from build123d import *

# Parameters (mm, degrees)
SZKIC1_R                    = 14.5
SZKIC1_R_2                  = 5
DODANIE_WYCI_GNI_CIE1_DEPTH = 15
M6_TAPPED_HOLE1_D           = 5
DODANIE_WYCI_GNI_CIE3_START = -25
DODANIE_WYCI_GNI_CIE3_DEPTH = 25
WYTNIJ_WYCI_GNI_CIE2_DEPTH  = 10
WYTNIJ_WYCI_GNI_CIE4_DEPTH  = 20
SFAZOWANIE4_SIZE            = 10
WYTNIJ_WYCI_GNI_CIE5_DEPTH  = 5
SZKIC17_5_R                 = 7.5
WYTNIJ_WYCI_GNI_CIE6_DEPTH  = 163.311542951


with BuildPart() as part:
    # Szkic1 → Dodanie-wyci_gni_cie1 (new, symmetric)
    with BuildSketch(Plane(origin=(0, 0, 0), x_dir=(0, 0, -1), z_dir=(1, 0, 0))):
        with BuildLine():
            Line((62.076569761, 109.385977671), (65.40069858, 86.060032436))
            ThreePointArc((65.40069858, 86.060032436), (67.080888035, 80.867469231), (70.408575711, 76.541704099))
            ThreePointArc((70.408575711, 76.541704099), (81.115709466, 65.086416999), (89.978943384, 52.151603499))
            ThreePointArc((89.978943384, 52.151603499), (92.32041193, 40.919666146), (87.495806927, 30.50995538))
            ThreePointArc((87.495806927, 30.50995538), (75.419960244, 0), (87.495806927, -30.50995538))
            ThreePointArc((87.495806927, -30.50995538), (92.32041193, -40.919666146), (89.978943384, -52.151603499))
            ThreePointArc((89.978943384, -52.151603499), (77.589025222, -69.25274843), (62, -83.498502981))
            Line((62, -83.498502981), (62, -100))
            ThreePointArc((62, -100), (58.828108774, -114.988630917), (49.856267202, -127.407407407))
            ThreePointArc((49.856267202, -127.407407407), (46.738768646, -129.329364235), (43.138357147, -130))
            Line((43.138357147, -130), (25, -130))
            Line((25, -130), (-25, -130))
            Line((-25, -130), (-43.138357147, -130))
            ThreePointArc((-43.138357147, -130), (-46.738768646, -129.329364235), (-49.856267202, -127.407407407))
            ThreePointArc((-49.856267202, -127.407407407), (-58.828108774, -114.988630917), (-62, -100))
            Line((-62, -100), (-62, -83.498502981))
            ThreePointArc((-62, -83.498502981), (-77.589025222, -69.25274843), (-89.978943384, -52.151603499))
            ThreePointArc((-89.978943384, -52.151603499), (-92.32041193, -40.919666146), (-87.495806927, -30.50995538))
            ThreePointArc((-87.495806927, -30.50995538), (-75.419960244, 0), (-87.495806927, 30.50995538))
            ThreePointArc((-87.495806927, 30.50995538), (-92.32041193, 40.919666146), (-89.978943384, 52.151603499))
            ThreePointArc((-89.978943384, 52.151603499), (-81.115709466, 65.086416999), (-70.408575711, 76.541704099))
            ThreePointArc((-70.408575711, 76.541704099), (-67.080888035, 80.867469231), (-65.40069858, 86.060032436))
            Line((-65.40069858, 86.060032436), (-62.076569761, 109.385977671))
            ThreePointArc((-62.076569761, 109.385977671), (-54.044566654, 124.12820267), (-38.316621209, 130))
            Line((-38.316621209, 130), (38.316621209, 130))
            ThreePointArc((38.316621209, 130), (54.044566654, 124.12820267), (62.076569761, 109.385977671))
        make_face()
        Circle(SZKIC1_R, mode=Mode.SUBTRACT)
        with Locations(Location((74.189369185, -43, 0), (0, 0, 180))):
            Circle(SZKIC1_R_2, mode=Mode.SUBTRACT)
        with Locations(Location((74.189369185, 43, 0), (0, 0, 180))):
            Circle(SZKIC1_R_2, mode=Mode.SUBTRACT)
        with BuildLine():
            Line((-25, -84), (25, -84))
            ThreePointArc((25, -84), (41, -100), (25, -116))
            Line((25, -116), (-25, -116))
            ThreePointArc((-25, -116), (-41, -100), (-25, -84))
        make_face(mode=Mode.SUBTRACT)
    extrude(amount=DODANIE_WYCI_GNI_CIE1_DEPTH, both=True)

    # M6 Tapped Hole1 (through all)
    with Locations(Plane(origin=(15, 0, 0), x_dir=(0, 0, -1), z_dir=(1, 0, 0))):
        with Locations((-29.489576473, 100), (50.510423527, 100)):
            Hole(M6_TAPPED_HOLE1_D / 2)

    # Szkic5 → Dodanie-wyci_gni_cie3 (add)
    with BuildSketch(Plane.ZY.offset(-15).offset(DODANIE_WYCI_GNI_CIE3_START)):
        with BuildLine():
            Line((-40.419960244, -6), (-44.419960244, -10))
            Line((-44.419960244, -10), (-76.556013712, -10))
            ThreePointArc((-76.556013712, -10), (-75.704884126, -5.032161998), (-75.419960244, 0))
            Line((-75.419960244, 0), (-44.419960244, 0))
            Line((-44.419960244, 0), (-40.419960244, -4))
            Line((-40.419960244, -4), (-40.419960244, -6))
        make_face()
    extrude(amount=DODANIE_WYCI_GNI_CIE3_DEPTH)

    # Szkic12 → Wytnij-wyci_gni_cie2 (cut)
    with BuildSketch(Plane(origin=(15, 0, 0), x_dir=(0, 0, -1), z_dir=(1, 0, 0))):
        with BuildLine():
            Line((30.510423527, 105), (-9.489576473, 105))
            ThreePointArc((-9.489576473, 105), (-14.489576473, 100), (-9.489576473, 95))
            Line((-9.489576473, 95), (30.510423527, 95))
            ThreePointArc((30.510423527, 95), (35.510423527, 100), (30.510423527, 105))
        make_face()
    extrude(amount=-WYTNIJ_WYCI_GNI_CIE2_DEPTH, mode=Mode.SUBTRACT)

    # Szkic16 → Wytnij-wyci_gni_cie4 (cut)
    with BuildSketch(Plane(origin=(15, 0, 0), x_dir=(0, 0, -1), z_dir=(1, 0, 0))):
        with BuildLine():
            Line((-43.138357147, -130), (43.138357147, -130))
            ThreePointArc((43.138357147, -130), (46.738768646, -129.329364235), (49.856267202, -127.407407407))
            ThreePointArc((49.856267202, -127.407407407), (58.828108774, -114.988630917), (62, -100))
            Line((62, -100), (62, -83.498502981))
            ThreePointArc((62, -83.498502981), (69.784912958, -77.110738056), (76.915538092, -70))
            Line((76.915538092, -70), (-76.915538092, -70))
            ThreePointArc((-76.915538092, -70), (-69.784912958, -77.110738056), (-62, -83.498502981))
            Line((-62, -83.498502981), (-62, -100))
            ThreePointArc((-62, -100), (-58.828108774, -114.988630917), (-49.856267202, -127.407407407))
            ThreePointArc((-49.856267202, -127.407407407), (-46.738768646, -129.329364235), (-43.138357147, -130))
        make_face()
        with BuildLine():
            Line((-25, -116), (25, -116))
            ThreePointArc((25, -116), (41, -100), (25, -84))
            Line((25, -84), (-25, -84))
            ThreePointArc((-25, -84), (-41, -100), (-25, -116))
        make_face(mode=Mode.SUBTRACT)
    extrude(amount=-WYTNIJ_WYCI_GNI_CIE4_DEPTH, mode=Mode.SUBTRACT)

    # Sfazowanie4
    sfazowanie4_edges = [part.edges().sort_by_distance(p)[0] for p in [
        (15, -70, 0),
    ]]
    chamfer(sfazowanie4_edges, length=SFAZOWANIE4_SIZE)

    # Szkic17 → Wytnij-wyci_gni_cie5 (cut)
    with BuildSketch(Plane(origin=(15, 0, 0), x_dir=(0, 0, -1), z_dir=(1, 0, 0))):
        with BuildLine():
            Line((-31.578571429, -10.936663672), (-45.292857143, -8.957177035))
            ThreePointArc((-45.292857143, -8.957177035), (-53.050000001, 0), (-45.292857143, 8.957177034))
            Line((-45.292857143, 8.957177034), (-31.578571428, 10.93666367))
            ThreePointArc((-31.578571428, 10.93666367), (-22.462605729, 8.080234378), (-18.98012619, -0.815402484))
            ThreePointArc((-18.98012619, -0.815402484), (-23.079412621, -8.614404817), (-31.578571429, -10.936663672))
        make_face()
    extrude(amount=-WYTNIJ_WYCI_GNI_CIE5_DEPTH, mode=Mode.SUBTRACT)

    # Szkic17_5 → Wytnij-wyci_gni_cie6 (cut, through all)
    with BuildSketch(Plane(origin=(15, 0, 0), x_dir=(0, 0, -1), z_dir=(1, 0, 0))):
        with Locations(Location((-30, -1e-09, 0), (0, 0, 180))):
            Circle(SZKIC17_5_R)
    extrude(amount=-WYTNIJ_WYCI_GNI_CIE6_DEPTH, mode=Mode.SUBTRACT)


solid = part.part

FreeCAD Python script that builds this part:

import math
import FreeCAD as App
import Part
import Sketcher
Q = App.Units.Quantity


def edges_at(feature, points):
    """Names of the edges that pass closest to the given points."""
    edges = feature.Shape.Edges
    near = lambda p: min(range(len(edges)), key=lambda i: edges[i].distToShape(Part.Vertex(*p))[0])
    return sorted({f"Edge{near(p) + 1}" for p in points})

doc = App.newDocument("Part")
body = doc.addObject("PartDesign::Body", "Body")

sketch1 = body.newObject("Sketcher::SketchObject", "Sketch")
sketch1.AttachmentSupport = (doc.getObject("YZ_Plane"), [""])
sketch1.MapMode = "FlatFace"
sketch1.addGeometry([
    Part.LineSegment(App.Vector(86, -65, 0), App.Vector(109, -62, 0)),
    Part.ArcOfCircle(Part.Circle(App.Vector(106, -38, 0), App.Vector(0, 0, 1), 24), math.radians(-82), math.radians(0)),
    Part.LineSegment(App.Vector(130, -38, 0), App.Vector(130, 38, 0)),
    Part.ArcOfCircle(Part.Circle(App.Vector(106, 38, 0), App.Vector(0, 0, 1), 24), math.radians(0), math.radians(82)),
    Part.LineSegment(App.Vector(109, 62, 0), App.Vector(86, 65, 0)),
    Part.ArcOfCircle(Part.Circle(App.Vector(88, 81, 0), App.Vector(0, 0, 1), 16), math.radians(-137), math.radians(-98)),
    Part.ArcOfCircle(Part.Circle(App.Vector(0, 0, 0), App.Vector(0, 0, 1), 104), math.radians(42.61), math.radians(59.9)),
    Part.ArcOfCircle(Part.Circle(App.Vector(43, 74, 0), App.Vector(0, 0, 1), 18), math.radians(60), math.radians(133)),
    Part.ArcOfCircle(Part.Circle(App.Vector(0, 120, 0), App.Vector(0, 0, 1), 45), math.radians(-133), math.radians(-47)),
    Part.ArcOfCircle(Part.Circle(App.Vector(-43, 74, 0), App.Vector(0, 0, 1), 18), math.radians(47), math.radians(120)),
    Part.ArcOfCircle(Part.Circle(App.Vector(0, 0, 0), App.Vector(0, 0, 1), 104), math.radians(120), math.radians(143)),
    Part.LineSegment(App.Vector(-83, 62, 0), App.Vector(-100, 62, 0)),
    Part.ArcOfCircle(Part.Circle(App.Vector(-100, 25, 0), App.Vector(0, 0, 1), 37), math.radians(90), math.radians(138)),
    Part.ArcOfCircle(Part.Circle(App.Vector(-120, 43, 0), App.Vector(0, 0, 1), 10), math.radians(138), math.radians(180)),
    Part.LineSegment(App.Vector(-130, 43, 0), App.Vector(-130, -43, 0)),
    Part.ArcOfCircle(Part.Circle(App.Vector(-120, -43, 0), App.Vector(0, 0, 1), 10), math.radians(-180), math.radians(-138)),
    Part.ArcOfCircle(Part.Circle(App.Vector(-100, -25, 0), App.Vector(0, 0, 1), 37), math.radians(-138), math.radians(-90)),
    Part.LineSegment(App.Vector(-100, -62, 0), App.Vector(-83, -62, 0)),
    Part.ArcOfCircle(Part.Circle(App.Vector(0, 0, 0), App.Vector(0, 0, 1), 104), math.radians(-143), math.radians(-120)),
    Part.ArcOfCircle(Part.Circle(App.Vector(-43, -74, 0), App.Vector(0, 0, 1), 18), math.radians(-120), math.radians(-47)),
    Part.ArcOfCircle(Part.Circle(App.Vector(0, -120, 0), App.Vector(0, 0, 1), 45), math.radians(47), math.radians(133)),
    Part.ArcOfCircle(Part.Circle(App.Vector(43, -74, 0), App.Vector(0, 0, 1), 18), math.radians(-133), math.radians(-60)),
    Part.ArcOfCircle(Part.Circle(App.Vector(0, 0, 0), App.Vector(0, 0, 1), 104), math.radians(-59.9), math.radians(-42.61)),
    Part.ArcOfCircle(Part.Circle(App.Vector(88, -81, 0), App.Vector(0, 0, 1), 16), math.radians(98), math.radians(137)),
    Part.Circle(App.Vector(-43, -74, 0), App.Vector(0, 0, 1), 5),
    Part.LineSegment(App.Vector(-84, 25, 0), App.Vector(-84, -25, 0)),
    Part.ArcOfCircle(Part.Circle(App.Vector(-100, -25, 0), App.Vector(0, 0, 1), 16), math.radians(180), math.radians(360)),
    Part.LineSegment(App.Vector(-116, -25, 0), App.Vector(-116, 25, 0)),
    Part.ArcOfCircle(Part.Circle(App.Vector(-100, 25, 0), App.Vector(0, 0, 1), 16), math.radians(0), math.radians(180)),
    Part.Circle(App.Vector(43, -74, 0), App.Vector(0, 0, 1), 5),
    Part.Circle(App.Vector(0, 0, 0), App.Vector(0, 0, 1), 14),
], False)
sketch1.addConstraint([
    Sketcher.Constraint("Tangent", 0, 2, 1, 1),
    Sketcher.Constraint("Tangent", 1, 2, 2, 1),
    Sketcher.Constraint("Tangent", 2, 2, 3, 1),
    Sketcher.Constraint("Tangent", 3, 2, 4, 1),
    Sketcher.Constraint("Tangent", 4, 2, 5, 2),
    Sketcher.Constraint("Tangent", 5, 1, 6, 1),
    Sketcher.Constraint("Tangent", 6, 2, 7, 1),
    Sketcher.Constraint("Tangent", 7, 2, 8, 2),
    Sketcher.Constraint("Tangent", 8, 1, 9, 1),
    Sketcher.Constraint("Tangent", 9, 2, 10, 1),
    Sketcher.Constraint("Coincident", 10, 2, 11, 1),
    Sketcher.Constraint("Tangent", 11, 2, 12, 1),
    Sketcher.Constraint("Tangent", 12, 2, 13, 1),
    Sketcher.Constraint("Tangent", 13, 2, 14, 1),
    Sketcher.Constraint("Tangent", 14, 2, 15, 1),
    Sketcher.Constraint("Tangent", 15, 2, 16, 1),
    Sketcher.Constraint("Tangent", 16, 2, 17, 1),
    Sketcher.Constraint("Coincident", 17, 2, 18, 1),
    Sketcher.Constraint("Tangent", 18, 2, 19, 1),
    Sketcher.Constraint("Tangent", 19, 2, 20, 2),
    Sketcher.Constraint("Tangent", 20, 1, 21, 1),
    Sketcher.Constraint("Tangent", 21, 2, 22, 1),
    Sketcher.Constraint("Tangent", 22, 2, 23, 2),
    Sketcher.Constraint("Tangent", 23, 1, 0, 1),
    Sketcher.Constraint("Tangent", 25, 2, 26, 2),
    Sketcher.Constraint("Tangent", 26, 1, 27, 1),
    Sketcher.Constraint("Tangent", 27, 2, 28, 2),
    Sketcher.Constraint("Tangent", 28, 1, 25, 1),
    Sketcher.Constraint("Vertical", 2),
    Sketcher.Constraint("Horizontal", 11),
    Sketcher.Constraint("Vertical", 14),
    Sketcher.Constraint("Horizontal", 17),
    Sketcher.Constraint("Vertical", 25),
    Sketcher.Constraint("Vertical", 27),
    Sketcher.Constraint("Coincident", 6, 3, -1, 1),
    Sketcher.Constraint("Coincident", 10, 3, -1, 1),
    Sketcher.Constraint("Coincident", 18, 3, -1, 1),
    Sketcher.Constraint("Coincident", 22, 3, -1, 1),
    Sketcher.Constraint("Coincident", 30, 3, -1, 1),
    Sketcher.Constraint("Coincident", 24, 3, 19, 3),
    Sketcher.Constraint("Coincident", 26, 3, 16, 3),
    Sketcher.Constraint("Coincident", 28, 3, 12, 3),
    Sketcher.Constraint("Coincident", 29, 3, 21, 3),
    Sketcher.Constraint("Equal", 1, 3),
    Sketcher.Constraint("Equal", 7, 9),
    Sketcher.Constraint("Equal", 6, 10),
    Sketcher.Constraint("Equal", 13, 15),
    Sketcher.Constraint("Equal", 12, 16),
    Sketcher.Constraint("Equal", 10, 18),
    Sketcher.Constraint("Equal", 9, 19),
    Sketcher.Constraint("Equal", 8, 20),
    Sketcher.Constraint("Equal", 19, 21),
    Sketcher.Constraint("Equal", 18, 22),
    Sketcher.Constraint("Equal", 5, 23),
    Sketcher.Constraint("Equal", 23, 26),
    Sketcher.Constraint("Equal", 24, 29),
    Sketcher.Constraint("Symmetric", 8, 3, 20, 3, -1, 1),
    Sketcher.Constraint("Symmetric", 0, 2, 3, 2, -1),
    Sketcher.Constraint("PointOnObject", 8, 3, -2),
    Sketcher.Constraint("Vertical", 10, 2, 17, 2),
    Sketcher.Constraint("Diameter", 24, Q("10 mm")),
    Sketcher.Constraint("Diameter", 30, Q("29 mm")),
    Sketcher.Constraint("Radius", 1, Q("24 mm")),
    Sketcher.Constraint("Radius", 5, Q("16 mm")),
    Sketcher.Constraint("Radius", 6, Q("104 mm")),
    Sketcher.Constraint("Radius", 12, Q("37 mm")),
    Sketcher.Constraint("Radius", 13, Q("10 mm")),
    Sketcher.Constraint("DistanceY", 25, 2, 25, 1, Q("50 mm")),
    Sketcher.Constraint("Radius", 7, Q("18.25 mm")),
    Sketcher.Constraint("DistanceX", -1, 1, 1, 3, Q("106 mm")),
    Sketcher.Constraint("DistanceX", -1, 1, 7, 3, Q("43 mm")),
    Sketcher.Constraint("DistanceY", -1, 1, 8, 3, Q("120 mm")),
    Sketcher.Constraint("DistanceX", 12, 3, -1, 1, Q("100 mm")),
    Sketcher.Constraint("DistanceX", 13, 3, -1, 1, Q("120 mm")),
    Sketcher.Constraint("DistanceY", -1, 1, 4, 2, Q("65.400699 mm")),
    Sketcher.Constraint("DistanceY", 21, 3, 0, 2, Q("12.112799 mm")),
])
pad1 = body.newObject("PartDesign::Pad", "Pad")
pad1.Profile = sketch1
pad1.Length = 30
pad1.Midplane = True

sketch2 = body.newObject("Sketcher::SketchObject", "Sketch001")
sketch2.AttachmentSupport = (doc.getObject("YZ_Plane"), [""])
sketch2.MapMode = "FlatFace"
sketch2.AttachmentOffset = App.Placement(App.Vector(0, 0, 15), App.Rotation())
sketch2.addGeometry([
    Part.Circle(App.Vector(100, 29.5, 0), App.Vector(0, 0, 1), 2.5),
    Part.Circle(App.Vector(100, -50.5, 0), App.Vector(0, 0, 1), 2.5),
], False)
sketch2.addConstraint([
    Sketcher.Constraint("Equal", 0, 1),
    Sketcher.Constraint("Vertical", 0, 3, 1, 3),
    Sketcher.Constraint("Diameter", 0, Q("5 mm")),
    Sketcher.Constraint("DistanceX", -1, 1, 0, 3, Q("100 mm")),
    Sketcher.Constraint("DistanceY", 1, 3, 0, 3, Q("80 mm")),
    Sketcher.Constraint("DistanceY", -1, 1, 0, 3, Q("29.489576 mm")),
])
doc.recompute()
hole = body.newObject("PartDesign::Hole", "Hole")
hole.Profile = sketch2
hole.ThreadType = "None"
hole.Diameter = 5
hole.DepthType = "ThroughAll"

sketch3 = body.newObject("Sketcher::SketchObject", "Sketch002")
sketch3.AttachmentSupport = (doc.getObject("YZ_Plane"), [""])
sketch3.MapMode = "FlatFace"
sketch3.AttachmentOffset = App.Placement(App.Vector(0, 0, 40), App.Rotation())
sketch3.addGeometry([
    Part.LineSegment(App.Vector(-10, -44.4, 0), App.Vector(-6, -40.4, 0)),
    Part.LineSegment(App.Vector(-6, -40.4, 0), App.Vector(-4, -40.4, 0)),
    Part.LineSegment(App.Vector(-4, -40.4, 0), App.Vector(0, -44.4, 0)),
    Part.LineSegment(App.Vector(0, -44.4, 0), App.Vector(0, -75.4, 0)),
    Part.ArcOfCircle(Part.Circle(App.Vector(0, -120, 0), App.Vector(0, 0, 1), 44.6), math.radians(90), math.radians(102.96)),
    Part.LineSegment(App.Vector(-10, -76.6, 0), App.Vector(-10, -44.4, 0)),
], False)
sketch3.addConstraint([
    Sketcher.Constraint("Coincident", 0, 2, 1, 1),
    Sketcher.Constraint("Coincident", 1, 2, 2, 1),
    Sketcher.Constraint("Coincident", 2, 2, 3, 1),
    Sketcher.Constraint("Coincident", 3, 2, 4, 1),
    Sketcher.Constraint("Coincident", 4, 2, 5, 1),
    Sketcher.Constraint("Coincident", 5, 2, 0, 1),
    Sketcher.Constraint("Horizontal", 1),
    Sketcher.Constraint("Vertical", 3),
    Sketcher.Constraint("Vertical", 5),
    Sketcher.Constraint("PointOnObject", 4, 3, -2),
    Sketcher.Constraint("PointOnObject", 2, 2, -2),
    Sketcher.Constraint("Perpendicular", 0, 2),
    Sketcher.Constraint("Horizontal", 2, 2, 5, 2),
    Sketcher.Constraint("Equal", 0, 2),
    Sketcher.Constraint("DistanceX", 1, 1, 1, 2, Q("2 mm")),
    Sketcher.Constraint("DistanceY", 3, 2, 3, 1, Q("31 mm")),
    Sketcher.Constraint("DistanceY", 4, 3, -1, 1, Q("120 mm")),
    Sketcher.Constraint("DistanceX", 0, 2, -1, 1, Q("6 mm")),
    Sketcher.Constraint("Radius", 4, Q("44.58004 mm")),
])
pad2 = body.newObject("PartDesign::Pad", "Pad001")
pad2.Profile = sketch3
pad2.Length = 25
pad2.Reversed = True

sketch4 = body.newObject("Sketcher::SketchObject", "Sketch003")
sketch4.AttachmentSupport = (doc.getObject("YZ_Plane"), [""])
sketch4.MapMode = "FlatFace"
sketch4.AttachmentOffset = App.Placement(App.Vector(0, 0, 15), App.Rotation())
sketch4.addGeometry([
    Part.LineSegment(App.Vector(105, -31, 0), App.Vector(105, 9, 0)),
    Part.ArcOfCircle(Part.Circle(App.Vector(100, 9, 0), App.Vector(0, 0, 1), 5), math.radians(0), math.radians(180)),
    Part.LineSegment(App.Vector(95, 9, 0), App.Vector(95, -31, 0)),
    Part.ArcOfCircle(Part.Circle(App.Vector(100, -31, 0), App.Vector(0, 0, 1), 5), math.radians(180), math.radians(360)),
], False)
sketch4.addConstraint([
    Sketcher.Constraint("Tangent", 0, 2, 1, 1),
    Sketcher.Constraint("Tangent", 1, 2, 2, 1),
    Sketcher.Constraint("Tangent", 2, 2, 3, 1),
    Sketcher.Constraint("Tangent", 3, 2, 0, 1),
    Sketcher.Constraint("Vertical", 0),
    Sketcher.Constraint("Vertical", 2),
    Sketcher.Constraint("Radius", 1, Q("5 mm")),
    Sketcher.Constraint("DistanceY", 0, 1, 0, 2, Q("40 mm")),
    Sketcher.Constraint("DistanceX", -1, 1, 1, 3, Q("100 mm")),
    Sketcher.Constraint("DistanceY", -1, 1, 1, 3, Q("9.489576 mm")),
])
pocket1 = body.newObject("PartDesign::Pocket", "Pocket")
pocket1.Profile = sketch4
pocket1.Length = 10

sketch5 = body.newObject("Sketcher::SketchObject", "Sketch004")
sketch5.AttachmentSupport = (doc.getObject("YZ_Plane"), [""])
sketch5.MapMode = "FlatFace"
sketch5.AttachmentOffset = App.Placement(App.Vector(0, 0, 15), App.Rotation())
sketch5.addGeometry([
    Part.LineSegment(App.Vector(-130, 43, 0), App.Vector(-130, -43, 0)),
    Part.ArcOfCircle(Part.Circle(App.Vector(-120, -43, 0), App.Vector(0, 0, 1), 10), math.radians(-180), math.radians(-138)),
    Part.ArcOfCircle(Part.Circle(App.Vector(-100, -25, 0), App.Vector(0, 0, 1), 37), math.radians(-138), math.radians(-90)),
    Part.LineSegment(App.Vector(-100, -62, 0), App.Vector(-83, -62, 0)),
    Part.ArcOfCircle(Part.Circle(App.Vector(0, 0, 0), App.Vector(0, 0, 1), 104), math.radians(-143.41), math.radians(-132.3)),
    Part.LineSegment(App.Vector(-70, -77, 0), App.Vector(-70, 77, 0)),
    Part.ArcOfCircle(Part.Circle(App.Vector(0, 0, 0), App.Vector(0, 0, 1), 104), math.radians(132.3), math.radians(143.41)),
    Part.LineSegment(App.Vector(-83, 62, 0), App.Vector(-100, 62, 0)),
    Part.ArcOfCircle(Part.Circle(App.Vector(-100, 25, 0), App.Vector(0, 0, 1), 37), math.radians(90), math.radians(138)),
    Part.ArcOfCircle(Part.Circle(App.Vector(-120, 43, 0), App.Vector(0, 0, 1), 10), math.radians(138), math.radians(180)),
    Part.LineSegment(App.Vector(-116, -25, 0), App.Vector(-116, 25, 0)),
    Part.ArcOfCircle(Part.Circle(App.Vector(-100, 25, 0), App.Vector(0, 0, 1), 16), math.radians(0), math.radians(180)),
    Part.LineSegment(App.Vector(-84, 25, 0), App.Vector(-84, -25, 0)),
    Part.ArcOfCircle(Part.Circle(App.Vector(-100, -25, 0), App.Vector(0, 0, 1), 16), math.radians(180), math.radians(360)),
], False)
sketch5.addConstraint([
    Sketcher.Constraint("Tangent", 0, 2, 1, 1),
    Sketcher.Constraint("Tangent", 1, 2, 2, 1),
    Sketcher.Constraint("Tangent", 2, 2, 3, 1),
    Sketcher.Constraint("Coincident", 3, 2, 4, 1),
    Sketcher.Constraint("Coincident", 4, 2, 5, 1),
    Sketcher.Constraint("Coincident", 5, 2, 6, 1),
    Sketcher.Constraint("Coincident", 6, 2, 7, 1),
    Sketcher.Constraint("Tangent", 7, 2, 8, 1),
    Sketcher.Constraint("Tangent", 8, 2, 9, 1),
    Sketcher.Constraint("Tangent", 9, 2, 0, 1),
    Sketcher.Constraint("Tangent", 10, 2, 11, 2),
    Sketcher.Constraint("Tangent", 11, 1, 12, 1),
    Sketcher.Constraint("Tangent", 12, 2, 13, 2),
    Sketcher.Constraint("Tangent", 13, 1, 10, 1),
    Sketcher.Constraint("Vertical", 0),
    Sketcher.Constraint("Horizontal", 3),
    Sketcher.Constraint("Vertical", 5),
    Sketcher.Constraint("Horizontal", 7),
    Sketcher.Constraint("Vertical", 10),
    Sketcher.Constraint("Vertical", 12),
    Sketcher.Constraint("Coincident", 4, 3, -1, 1),
    Sketcher.Constraint("Coincident", 6, 3, -1, 1),
    Sketcher.Constraint("Coincident", 11, 3, 8, 3),
    Sketcher.Constraint("Coincident", 13, 3, 2, 3),
    Sketcher.Constraint("Equal", 4, 6),
    Sketcher.Constraint("Equal", 2, 8),
    Sketcher.Constraint("Equal", 1, 9),
    Sketcher.Constraint("Vertical", 3, 2, 6, 2),
    Sketcher.Constraint("Radius", 1, Q("10 mm")),
    Sketcher.Constraint("Radius", 2, Q("37 mm")),
    Sketcher.Constraint("Radius", 4, Q("104 mm")),
    Sketcher.Constraint("Radius", 11, Q("16 mm")),
    Sketcher.Constraint("DistanceY", 10, 1, 10, 2, Q("50 mm")),
    Sketcher.Constraint("DistanceX", 1, 3, -1, 1, Q("120 mm")),
    Sketcher.Constraint("DistanceX", 2, 3, -1, 1, Q("100 mm")),
    Sketcher.Constraint("DistanceX", 4, 2, -1, 1, Q("70 mm")),
])
pocket2 = body.newObject("PartDesign::Pocket", "Pocket001")
pocket2.Profile = sketch5
pocket2.Length = 20
doc.recompute()

chamfer = body.newObject("PartDesign::Chamfer", "Chamfer")
chamfer.Base = (pocket2, edges_at(pocket2, [(15, -70, 0)]))
chamfer.Size = 10

sketch6 = body.newObject("Sketcher::SketchObject", "Sketch005")
sketch6.AttachmentSupport = (doc.getObject("YZ_Plane"), [""])
sketch6.MapMode = "FlatFace"
sketch6.AttachmentOffset = App.Placement(App.Vector(0, 0, 15), App.Rotation())
sketch6.addGeometry([
    Part.LineSegment(App.Vector(-9, 45, 0), App.Vector(-11, 32, 0)),
    Part.ArcOfCircle(Part.Circle(App.Vector(0, 30, 0), App.Vector(0, 0, 1), 11), math.radians(172), math.radians(266)),
    Part.ArcOfCircle(Part.Circle(App.Vector(0, 30, 0), App.Vector(0, 0, 1), 11), math.radians(-94), math.radians(8)),
    Part.LineSegment(App.Vector(11, 32, 0), App.Vector(9, 45, 0)),
    Part.ArcOfCircle(Part.Circle(App.Vector(0, 44, 0), App.Vector(0, 0, 1), 9), math.radians(8), math.radians(172)),
], False)
sketch6.addConstraint([
    Sketcher.Constraint("Tangent", 0, 2, 1, 1),
    Sketcher.Constraint("Tangent", 1, 2, 2, 1),
    Sketcher.Constraint("Tangent", 2, 2, 3, 1),
    Sketcher.Constraint("Tangent", 3, 2, 4, 1),
    Sketcher.Constraint("Tangent", 4, 2, 0, 1),
    Sketcher.Constraint("Equal", 1, 2),
    Sketcher.Constraint("Symmetric", 0, 2, 2, 2, -2),
    Sketcher.Constraint("Radius", 1, Q("11.05 mm")),
    Sketcher.Constraint("Radius", 4, Q("9.05 mm")),
    Sketcher.Constraint("DistanceY", -1, 1, 1, 3, Q("30 mm")),
    Sketcher.Constraint("DistanceY", -1, 1, 4, 3, Q("44 mm")),
    Sketcher.Constraint("DistanceX", 0, 2, 1, 2, Q("10.121261 mm")),
])
pocket3 = body.newObject("PartDesign::Pocket", "Pocket002")
pocket3.Profile = sketch6
pocket3.Length = 5

sketch7 = body.newObject("Sketcher::SketchObject", "Sketch006")
sketch7.AttachmentSupport = (doc.getObject("YZ_Plane"), [""])
sketch7.MapMode = "FlatFace"
sketch7.AttachmentOffset = App.Placement(App.Vector(0, 0, 15), App.Rotation())
sketch7.addGeometry(Part.Circle(App.Vector(0, 30, 0), App.Vector(0, 0, 1), 8), False)
sketch7.addConstraint([
    Sketcher.Constraint("PointOnObject", 0, 3, -2),
    Sketcher.Constraint("Diameter", 0, Q("15 mm")),
    Sketcher.Constraint("DistanceY", -1, 1, 0, 3, Q("30 mm")),
])
pocket4 = body.newObject("PartDesign::Pocket", "Pocket003")
pocket4.Profile = sketch7
pocket4.Type = "ThroughAll"

doc.recompute()
